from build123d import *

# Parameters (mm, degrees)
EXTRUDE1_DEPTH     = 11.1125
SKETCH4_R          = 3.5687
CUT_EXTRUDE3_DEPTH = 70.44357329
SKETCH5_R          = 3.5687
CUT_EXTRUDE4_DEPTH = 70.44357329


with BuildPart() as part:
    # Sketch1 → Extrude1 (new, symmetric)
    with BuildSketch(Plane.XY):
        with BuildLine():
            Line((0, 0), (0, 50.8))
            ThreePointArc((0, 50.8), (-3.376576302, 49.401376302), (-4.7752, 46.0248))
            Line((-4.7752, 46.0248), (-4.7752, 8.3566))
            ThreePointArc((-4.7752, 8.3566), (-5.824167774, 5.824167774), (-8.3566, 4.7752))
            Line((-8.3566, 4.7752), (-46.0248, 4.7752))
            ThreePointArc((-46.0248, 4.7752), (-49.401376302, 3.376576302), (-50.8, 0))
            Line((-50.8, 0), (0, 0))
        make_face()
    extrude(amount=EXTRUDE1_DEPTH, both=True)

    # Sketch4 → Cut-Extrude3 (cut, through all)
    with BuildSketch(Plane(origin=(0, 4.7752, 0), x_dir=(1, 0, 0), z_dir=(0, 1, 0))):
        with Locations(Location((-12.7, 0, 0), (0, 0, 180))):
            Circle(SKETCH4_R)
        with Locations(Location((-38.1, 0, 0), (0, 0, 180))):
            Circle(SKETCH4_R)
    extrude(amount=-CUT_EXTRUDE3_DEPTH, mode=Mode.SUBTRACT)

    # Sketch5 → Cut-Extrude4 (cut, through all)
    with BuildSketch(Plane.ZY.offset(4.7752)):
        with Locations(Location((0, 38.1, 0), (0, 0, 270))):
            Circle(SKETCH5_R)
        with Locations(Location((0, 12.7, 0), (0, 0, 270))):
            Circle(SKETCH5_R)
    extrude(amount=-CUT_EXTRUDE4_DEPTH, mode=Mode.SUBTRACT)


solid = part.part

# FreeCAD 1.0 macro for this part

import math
import FreeCAD as App
import Part
import Sketcher
from FreeCAD import Vector
Q = App.Units.Quantity

doc = App.newDocument("Part")
body = doc.addObject("PartDesign::Body", "Body")

# Sketch on XY plane
sketch1 = doc.addObject("Sketcher::SketchObject", "Sketch")
body.addObject(sketch1)
sketch1.AttachmentSupport = (doc.XY_Plane, [""])
sketch1.MapMode = "FlatFace"
sketch1.addGeometry([
    Part.LineSegment(Vector(0, 0, 0), Vector(0, 50.8, 0)),  # 0
    Part.ArcOfCircle(Part.Circle(Vector(0, 46, 0), Vector(0, 0, 1), 4.8), math.radians(90), math.radians(180)),  # 1
    Part.LineSegment(Vector(-4.8, 46, 0), Vector(-4.8, 8.4, 0)),  # 2
    Part.ArcOfCircle(Part.Circle(Vector(-8.4, 8.4, 0), Vector(0, 0, 1), 3.6), math.radians(-90), math.radians(0)),  # 3
    Part.LineSegment(Vector(-8.4, 4.8, 0), Vector(-46, 4.8, 0)),  # 4
    Part.ArcOfCircle(Part.Circle(Vector(-46, 0, 0), Vector(0, 0, 1), 4.8), math.radians(90), math.radians(180)),  # 5
    Part.LineSegment(Vector(-50.8, 0, 0), Vector(0, 0, 0)),  # 6
], False)
sketch1.addConstraint([
    Sketcher.Constraint("Coincident", 0, 2, 1, 1),
    Sketcher.Constraint("Tangent", 1, 2, 2, 1),
    Sketcher.Constraint("Tangent", 2, 2, 3, 2),
    Sketcher.Constraint("Tangent", 3, 1, 4, 1),
    Sketcher.Constraint("Tangent", 4, 2, 5, 1),
    Sketcher.Constraint("Coincident", 5, 2, 6, 1),
    Sketcher.Constraint("Coincident", 6, 2, 0, 1),
    Sketcher.Constraint("Vertical", 0),
    Sketcher.Constraint("Vertical", 2),
    Sketcher.Constraint("Horizontal", 4),
    Sketcher.Constraint("Horizontal", 6),
    Sketcher.Constraint("Coincident", 6, 2, -1, 1),
    Sketcher.Constraint("Equal", 1, 5),
    Sketcher.Constraint("PointOnObject", 1, 3, -2),
    Sketcher.Constraint("PointOnObject", 5, 3, -1),
    Sketcher.Constraint("Equal", 6, 0),
    Sketcher.Constraint("DistanceX", 6, 1, 6, 2, Q("2 in")),
    Sketcher.Constraint("Radius", 1, Q("0.188 in")),
    Sketcher.Constraint("Radius", 3, Q("0.141 in")),
])
pad1 = doc.addObject("PartDesign::Pad", "Pad")
body.addObject(pad1)
pad1.Profile = sketch1
pad1.Length = Q("0.875 in")
pad1.Midplane = True

# Sketch on XZ plane
sketch2 = doc.addObject("Sketcher::SketchObject", "Sketch001")
body.addObject(sketch2)
sketch2.AttachmentSupport = (doc.XZ_Plane, [""])
sketch2.MapMode = "FlatFace"
sketch2.AttachmentOffset = App.Placement(Vector(0, 0, -0.188 * 25.4), App.Rotation())
sketch2.addGeometry([
    Part.Circle(Vector(-12.7, 0, 0), Vector(0, 0, 1), 3.6),
    Part.Circle(Vector(-38.1, 0, 0), Vector(0, 0, 1), 3.6),
], False)
sketch2.addConstraint([
    Sketcher.Constraint("Equal", 0, 1),
    Sketcher.Constraint("PointOnObject", 0, 3, -1),
    Sketcher.Constraint("PointOnObject", 1, 3, -1),
    Sketcher.Constraint("Diameter", 0, Q("0.281 in")),
    Sketcher.Constraint("DistanceX", 1, 3, 0, 3, Q("1 in")),
    Sketcher.Constraint("DistanceX", 0, 3, -1, 1, Q("0.5 in")),
])
pocket1 = doc.addObject("PartDesign::Pocket", "Pocket")
body.addObject(pocket1)
pocket1.Profile = sketch2
pocket1.Type = "ThroughAll"
pocket1.Reversed = True

# Sketch on YZ plane
sketch3 = doc.addObject("Sketcher::SketchObject", "Sketch002")
body.addObject(sketch3)
sketch3.AttachmentSupport = (doc.YZ_Plane, [""])
sketch3.MapMode = "FlatFace"
sketch3.AttachmentOffset = App.Placement(Vector(0, 0, -0.188 * 25.4), App.Rotation())
sketch3.addGeometry([
    Part.Circle(Vector(38.1, 0, 0), Vector(0, 0, 1), 3.6),
    Part.Circle(Vector(12.7, 0, 0), Vector(0, 0, 1), 3.6),
], False)
sketch3.addConstraint([
    Sketcher.Constraint("Equal", 0, 1),
    Sketcher.Constraint("PointOnObject", 0, 3, -1),
    Sketcher.Constraint("PointOnObject", 1, 3, -1),
    Sketcher.Constraint("Diameter", 0, Q("0.281 in")),
    Sketcher.Constraint("DistanceX", 1, 3, 0, 3, Q("1 in")),
    Sketcher.Constraint("DistanceX", -1, 1, 0, 3, Q("1.5 in")),
])
pocket2 = doc.addObject("PartDesign::Pocket", "Pocket001")
body.addObject(pocket2)
pocket2.Profile = sketch3
pocket2.Type = "ThroughAll"
pocket2.Reversed = True

doc.recompute()
